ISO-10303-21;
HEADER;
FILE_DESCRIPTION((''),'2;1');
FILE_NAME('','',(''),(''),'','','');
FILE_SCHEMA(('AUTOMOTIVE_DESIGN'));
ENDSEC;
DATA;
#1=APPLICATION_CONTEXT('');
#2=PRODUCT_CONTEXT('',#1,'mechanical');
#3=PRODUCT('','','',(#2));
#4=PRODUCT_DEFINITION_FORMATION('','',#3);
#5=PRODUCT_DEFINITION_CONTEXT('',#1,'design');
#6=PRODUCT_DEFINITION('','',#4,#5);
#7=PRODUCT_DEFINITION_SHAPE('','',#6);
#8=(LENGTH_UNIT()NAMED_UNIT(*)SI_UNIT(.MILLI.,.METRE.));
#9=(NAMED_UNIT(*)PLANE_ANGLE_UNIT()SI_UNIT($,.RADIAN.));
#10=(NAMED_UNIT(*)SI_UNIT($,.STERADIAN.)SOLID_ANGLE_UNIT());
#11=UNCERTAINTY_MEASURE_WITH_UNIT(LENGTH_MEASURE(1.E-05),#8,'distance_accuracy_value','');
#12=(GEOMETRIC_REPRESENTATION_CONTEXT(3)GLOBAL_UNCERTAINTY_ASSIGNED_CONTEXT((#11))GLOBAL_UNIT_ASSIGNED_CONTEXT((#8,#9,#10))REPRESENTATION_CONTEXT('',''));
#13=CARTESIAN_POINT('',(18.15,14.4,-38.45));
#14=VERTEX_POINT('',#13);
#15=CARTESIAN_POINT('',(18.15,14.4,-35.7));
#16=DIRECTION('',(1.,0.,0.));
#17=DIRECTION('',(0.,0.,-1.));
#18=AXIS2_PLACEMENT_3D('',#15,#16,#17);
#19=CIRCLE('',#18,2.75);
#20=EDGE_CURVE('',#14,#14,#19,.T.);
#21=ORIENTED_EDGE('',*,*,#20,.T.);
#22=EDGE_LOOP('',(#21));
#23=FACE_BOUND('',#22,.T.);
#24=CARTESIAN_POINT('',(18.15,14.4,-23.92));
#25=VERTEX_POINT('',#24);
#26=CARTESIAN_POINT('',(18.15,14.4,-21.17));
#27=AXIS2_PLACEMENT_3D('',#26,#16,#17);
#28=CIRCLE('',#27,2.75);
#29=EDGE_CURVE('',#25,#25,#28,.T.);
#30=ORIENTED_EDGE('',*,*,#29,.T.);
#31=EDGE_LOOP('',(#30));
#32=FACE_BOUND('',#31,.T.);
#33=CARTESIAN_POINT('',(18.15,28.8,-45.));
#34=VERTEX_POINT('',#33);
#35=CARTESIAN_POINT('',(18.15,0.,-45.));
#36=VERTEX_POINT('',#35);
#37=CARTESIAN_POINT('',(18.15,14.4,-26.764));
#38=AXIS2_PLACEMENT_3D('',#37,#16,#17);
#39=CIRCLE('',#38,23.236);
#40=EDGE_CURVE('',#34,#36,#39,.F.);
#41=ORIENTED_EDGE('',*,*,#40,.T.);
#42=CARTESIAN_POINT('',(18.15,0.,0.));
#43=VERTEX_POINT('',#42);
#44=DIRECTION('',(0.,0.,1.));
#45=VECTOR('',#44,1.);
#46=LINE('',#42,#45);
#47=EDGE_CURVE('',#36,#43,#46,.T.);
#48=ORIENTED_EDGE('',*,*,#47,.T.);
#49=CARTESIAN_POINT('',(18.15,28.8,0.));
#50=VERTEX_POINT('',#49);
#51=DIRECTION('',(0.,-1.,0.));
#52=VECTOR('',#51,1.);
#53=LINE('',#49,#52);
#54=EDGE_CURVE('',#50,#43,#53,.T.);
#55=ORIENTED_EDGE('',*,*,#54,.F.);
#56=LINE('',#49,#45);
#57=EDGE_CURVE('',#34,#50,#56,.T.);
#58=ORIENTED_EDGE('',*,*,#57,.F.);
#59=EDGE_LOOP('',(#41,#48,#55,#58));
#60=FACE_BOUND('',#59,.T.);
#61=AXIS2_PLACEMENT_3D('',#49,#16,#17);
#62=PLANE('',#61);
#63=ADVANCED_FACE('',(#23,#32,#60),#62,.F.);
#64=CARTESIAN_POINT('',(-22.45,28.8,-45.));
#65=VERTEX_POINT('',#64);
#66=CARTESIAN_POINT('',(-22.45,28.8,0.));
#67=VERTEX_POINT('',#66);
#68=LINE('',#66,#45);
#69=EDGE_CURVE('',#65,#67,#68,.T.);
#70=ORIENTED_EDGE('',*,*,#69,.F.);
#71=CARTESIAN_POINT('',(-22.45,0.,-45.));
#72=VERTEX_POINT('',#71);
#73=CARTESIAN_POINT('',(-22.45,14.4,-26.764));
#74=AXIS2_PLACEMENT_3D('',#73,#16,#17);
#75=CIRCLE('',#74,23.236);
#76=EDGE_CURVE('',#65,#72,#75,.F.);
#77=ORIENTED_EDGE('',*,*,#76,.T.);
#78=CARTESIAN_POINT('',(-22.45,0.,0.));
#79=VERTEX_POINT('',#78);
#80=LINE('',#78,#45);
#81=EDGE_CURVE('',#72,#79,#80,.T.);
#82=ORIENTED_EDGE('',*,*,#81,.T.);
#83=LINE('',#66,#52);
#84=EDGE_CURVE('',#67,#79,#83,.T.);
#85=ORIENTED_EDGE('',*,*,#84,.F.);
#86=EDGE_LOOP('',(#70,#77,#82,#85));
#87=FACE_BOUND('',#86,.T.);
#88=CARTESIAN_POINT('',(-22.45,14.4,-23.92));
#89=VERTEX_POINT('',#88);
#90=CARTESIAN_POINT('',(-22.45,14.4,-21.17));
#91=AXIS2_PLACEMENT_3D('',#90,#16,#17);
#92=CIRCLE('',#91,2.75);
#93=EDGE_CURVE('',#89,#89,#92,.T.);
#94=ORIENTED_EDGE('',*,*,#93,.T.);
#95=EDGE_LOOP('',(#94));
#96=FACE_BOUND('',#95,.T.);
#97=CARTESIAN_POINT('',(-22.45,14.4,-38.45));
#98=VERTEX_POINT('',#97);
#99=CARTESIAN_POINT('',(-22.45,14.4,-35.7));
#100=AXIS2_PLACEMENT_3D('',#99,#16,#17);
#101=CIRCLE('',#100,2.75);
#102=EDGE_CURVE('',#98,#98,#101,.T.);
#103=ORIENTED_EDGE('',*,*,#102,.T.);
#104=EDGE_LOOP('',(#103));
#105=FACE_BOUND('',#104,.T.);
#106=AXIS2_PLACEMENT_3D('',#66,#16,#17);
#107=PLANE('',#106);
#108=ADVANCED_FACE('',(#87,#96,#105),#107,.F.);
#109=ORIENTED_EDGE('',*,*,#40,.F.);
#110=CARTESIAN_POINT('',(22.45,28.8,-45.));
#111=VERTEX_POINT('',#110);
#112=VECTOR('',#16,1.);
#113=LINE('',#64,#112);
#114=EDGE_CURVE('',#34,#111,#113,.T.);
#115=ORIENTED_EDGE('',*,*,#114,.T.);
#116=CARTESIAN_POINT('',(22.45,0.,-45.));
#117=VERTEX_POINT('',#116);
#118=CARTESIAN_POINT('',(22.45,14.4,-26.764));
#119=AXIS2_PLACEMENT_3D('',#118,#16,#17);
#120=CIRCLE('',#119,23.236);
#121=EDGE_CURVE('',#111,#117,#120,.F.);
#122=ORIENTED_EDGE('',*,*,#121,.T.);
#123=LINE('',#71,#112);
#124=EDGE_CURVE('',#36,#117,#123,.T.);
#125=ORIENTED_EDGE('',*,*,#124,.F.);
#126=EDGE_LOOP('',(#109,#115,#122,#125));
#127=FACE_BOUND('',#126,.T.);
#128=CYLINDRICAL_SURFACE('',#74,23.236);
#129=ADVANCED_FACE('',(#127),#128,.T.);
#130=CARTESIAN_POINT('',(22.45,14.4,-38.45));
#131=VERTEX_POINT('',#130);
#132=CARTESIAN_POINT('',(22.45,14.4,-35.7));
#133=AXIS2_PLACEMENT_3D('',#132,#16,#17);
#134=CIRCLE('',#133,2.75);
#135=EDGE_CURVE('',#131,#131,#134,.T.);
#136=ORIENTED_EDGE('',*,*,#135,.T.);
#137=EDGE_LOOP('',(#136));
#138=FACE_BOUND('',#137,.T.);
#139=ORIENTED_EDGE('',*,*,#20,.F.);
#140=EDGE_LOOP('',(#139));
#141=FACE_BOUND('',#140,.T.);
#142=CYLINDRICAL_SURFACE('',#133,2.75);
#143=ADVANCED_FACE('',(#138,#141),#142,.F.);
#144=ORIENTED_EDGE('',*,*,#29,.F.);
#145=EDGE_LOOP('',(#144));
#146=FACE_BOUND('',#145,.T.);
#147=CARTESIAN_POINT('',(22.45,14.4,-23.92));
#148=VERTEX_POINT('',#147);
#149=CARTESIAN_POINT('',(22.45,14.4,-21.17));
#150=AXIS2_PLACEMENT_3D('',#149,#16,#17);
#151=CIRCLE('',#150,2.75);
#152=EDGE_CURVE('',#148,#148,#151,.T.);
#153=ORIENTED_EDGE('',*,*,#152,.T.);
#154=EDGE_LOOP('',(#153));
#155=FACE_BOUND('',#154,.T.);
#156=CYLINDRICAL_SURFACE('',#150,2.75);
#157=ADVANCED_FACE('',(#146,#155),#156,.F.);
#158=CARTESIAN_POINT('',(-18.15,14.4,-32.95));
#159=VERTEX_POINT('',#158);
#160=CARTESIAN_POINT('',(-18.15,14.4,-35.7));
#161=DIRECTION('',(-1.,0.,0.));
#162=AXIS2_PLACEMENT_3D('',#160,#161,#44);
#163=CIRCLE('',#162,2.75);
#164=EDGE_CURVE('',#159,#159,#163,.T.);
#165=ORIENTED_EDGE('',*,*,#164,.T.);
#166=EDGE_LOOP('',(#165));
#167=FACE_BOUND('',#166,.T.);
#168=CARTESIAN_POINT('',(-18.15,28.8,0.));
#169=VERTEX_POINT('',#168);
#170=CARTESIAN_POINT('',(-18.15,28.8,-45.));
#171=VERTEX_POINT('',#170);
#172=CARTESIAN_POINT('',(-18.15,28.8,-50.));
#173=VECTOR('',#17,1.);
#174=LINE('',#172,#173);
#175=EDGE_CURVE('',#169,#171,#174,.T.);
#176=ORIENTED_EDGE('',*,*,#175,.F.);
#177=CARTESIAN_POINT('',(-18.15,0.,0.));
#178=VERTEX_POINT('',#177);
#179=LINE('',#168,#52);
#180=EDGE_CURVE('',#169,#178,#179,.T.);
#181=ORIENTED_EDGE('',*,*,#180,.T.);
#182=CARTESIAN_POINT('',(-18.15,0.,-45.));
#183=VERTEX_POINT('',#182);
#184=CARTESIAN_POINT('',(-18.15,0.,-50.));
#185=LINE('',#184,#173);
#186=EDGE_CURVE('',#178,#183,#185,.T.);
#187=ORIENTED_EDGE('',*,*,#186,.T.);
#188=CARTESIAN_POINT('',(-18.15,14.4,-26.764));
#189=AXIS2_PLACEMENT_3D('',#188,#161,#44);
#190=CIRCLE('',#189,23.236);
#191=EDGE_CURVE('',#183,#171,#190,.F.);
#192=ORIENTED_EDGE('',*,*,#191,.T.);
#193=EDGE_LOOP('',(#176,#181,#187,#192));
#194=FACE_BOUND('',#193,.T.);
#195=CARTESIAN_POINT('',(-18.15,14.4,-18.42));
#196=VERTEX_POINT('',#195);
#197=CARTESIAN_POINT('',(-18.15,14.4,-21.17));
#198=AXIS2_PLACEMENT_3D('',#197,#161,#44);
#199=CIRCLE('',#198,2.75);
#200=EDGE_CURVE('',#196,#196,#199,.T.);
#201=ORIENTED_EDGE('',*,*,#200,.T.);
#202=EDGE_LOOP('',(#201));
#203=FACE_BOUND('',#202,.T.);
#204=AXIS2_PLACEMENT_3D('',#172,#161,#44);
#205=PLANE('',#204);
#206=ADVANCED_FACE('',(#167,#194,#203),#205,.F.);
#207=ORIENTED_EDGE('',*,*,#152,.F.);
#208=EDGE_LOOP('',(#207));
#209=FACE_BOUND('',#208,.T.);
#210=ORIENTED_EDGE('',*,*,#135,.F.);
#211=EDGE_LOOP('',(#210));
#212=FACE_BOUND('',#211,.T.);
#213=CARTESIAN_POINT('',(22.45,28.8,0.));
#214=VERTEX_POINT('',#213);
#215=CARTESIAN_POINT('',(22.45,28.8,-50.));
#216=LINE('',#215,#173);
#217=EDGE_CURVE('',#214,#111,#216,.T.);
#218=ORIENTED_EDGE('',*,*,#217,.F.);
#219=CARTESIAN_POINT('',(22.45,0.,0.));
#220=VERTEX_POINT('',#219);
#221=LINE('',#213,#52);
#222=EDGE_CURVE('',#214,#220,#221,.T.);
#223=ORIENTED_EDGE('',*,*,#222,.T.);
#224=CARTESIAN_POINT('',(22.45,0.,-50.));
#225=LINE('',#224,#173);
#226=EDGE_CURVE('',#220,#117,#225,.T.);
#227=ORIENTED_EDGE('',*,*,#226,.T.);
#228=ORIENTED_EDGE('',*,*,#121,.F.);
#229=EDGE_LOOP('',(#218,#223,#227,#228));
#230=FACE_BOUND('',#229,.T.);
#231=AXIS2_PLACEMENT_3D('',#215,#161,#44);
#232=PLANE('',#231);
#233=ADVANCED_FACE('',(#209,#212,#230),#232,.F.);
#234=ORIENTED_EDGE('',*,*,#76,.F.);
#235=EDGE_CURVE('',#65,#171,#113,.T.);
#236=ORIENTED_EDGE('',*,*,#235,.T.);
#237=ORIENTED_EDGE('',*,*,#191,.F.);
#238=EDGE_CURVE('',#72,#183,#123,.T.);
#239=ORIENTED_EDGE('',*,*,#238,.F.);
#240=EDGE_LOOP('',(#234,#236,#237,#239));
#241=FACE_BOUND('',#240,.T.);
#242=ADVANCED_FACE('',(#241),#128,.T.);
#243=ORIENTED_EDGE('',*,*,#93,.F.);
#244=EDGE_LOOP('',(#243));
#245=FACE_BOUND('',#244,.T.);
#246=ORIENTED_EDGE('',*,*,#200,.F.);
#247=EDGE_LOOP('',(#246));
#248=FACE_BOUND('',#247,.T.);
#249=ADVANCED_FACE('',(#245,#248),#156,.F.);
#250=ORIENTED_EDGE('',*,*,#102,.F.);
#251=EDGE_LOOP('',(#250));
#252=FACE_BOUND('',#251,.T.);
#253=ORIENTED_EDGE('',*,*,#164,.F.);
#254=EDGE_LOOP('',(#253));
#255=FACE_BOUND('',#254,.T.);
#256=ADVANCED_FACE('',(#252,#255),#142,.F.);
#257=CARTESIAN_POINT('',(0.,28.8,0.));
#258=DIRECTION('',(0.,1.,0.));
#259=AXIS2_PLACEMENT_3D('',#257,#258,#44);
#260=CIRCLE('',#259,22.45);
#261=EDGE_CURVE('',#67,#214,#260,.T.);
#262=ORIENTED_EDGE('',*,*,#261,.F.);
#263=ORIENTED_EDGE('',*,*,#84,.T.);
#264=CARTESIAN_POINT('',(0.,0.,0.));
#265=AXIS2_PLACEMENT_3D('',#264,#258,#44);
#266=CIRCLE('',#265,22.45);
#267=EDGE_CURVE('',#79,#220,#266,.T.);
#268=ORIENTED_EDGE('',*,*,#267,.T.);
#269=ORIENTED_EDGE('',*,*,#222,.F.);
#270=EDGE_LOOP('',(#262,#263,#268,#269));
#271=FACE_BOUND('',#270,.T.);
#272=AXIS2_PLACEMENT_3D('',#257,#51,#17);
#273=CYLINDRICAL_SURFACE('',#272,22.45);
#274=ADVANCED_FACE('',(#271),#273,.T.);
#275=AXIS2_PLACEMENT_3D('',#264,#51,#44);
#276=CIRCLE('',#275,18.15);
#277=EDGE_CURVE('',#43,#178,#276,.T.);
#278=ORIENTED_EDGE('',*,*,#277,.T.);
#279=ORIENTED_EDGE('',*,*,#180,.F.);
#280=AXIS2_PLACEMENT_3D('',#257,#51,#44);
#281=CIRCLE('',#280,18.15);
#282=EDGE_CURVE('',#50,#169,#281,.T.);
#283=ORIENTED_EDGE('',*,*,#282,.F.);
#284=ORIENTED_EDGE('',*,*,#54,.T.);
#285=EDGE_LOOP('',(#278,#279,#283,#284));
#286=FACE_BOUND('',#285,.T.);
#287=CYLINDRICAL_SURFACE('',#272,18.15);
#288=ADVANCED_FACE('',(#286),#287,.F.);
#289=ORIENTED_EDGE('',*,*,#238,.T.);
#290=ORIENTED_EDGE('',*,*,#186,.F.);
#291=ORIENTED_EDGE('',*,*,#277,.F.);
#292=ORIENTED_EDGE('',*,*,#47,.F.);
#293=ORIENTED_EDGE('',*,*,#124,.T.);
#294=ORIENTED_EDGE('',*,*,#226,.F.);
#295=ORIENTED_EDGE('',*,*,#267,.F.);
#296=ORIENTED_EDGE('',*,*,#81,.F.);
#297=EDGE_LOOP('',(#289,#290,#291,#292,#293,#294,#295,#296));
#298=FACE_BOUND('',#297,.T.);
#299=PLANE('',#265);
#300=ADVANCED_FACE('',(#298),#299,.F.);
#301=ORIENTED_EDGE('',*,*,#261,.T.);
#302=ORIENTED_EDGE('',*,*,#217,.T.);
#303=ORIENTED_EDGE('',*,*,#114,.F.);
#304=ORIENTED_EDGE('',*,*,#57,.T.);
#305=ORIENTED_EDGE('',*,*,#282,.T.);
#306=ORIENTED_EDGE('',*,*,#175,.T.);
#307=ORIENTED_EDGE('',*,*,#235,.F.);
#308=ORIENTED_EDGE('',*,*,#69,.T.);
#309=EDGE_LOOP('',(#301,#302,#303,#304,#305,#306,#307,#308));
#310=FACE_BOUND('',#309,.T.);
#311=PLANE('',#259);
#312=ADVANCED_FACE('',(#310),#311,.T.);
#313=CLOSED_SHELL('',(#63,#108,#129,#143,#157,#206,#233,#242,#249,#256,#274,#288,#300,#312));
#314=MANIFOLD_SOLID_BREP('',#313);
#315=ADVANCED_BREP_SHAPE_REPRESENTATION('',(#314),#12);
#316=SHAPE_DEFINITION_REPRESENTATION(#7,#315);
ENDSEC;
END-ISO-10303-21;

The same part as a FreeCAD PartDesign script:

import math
import FreeCAD as App
import Part
import Sketcher
from FreeCAD import Vector

doc = App.newDocument("Part")
body = doc.addObject("PartDesign::Body", "Body")

# Sketch on XZ plane
sketch1 = body.newObject("Sketcher::SketchObject", "Sketch")
sketch1.AttachmentSupport = (doc.getObject("XZ_Plane"), [""])
sketch1.MapMode = "FlatFace"
sketch1.addGeometry(Part.LineSegment(Vector(-22.45, -50, 0), Vector(-22.45, 0, 0)), False)
sketch1.addGeometry(Part.ArcOfCircle(Part.Circle(Vector(0, 0, 0), Vector(0, 0, 1), 22.45), math.radians(0), math.radians(180)), False)
sketch1.addGeometry(Part.LineSegment(Vector(22.45, 0, 0), Vector(22.45, -50, 0)), False)
sketch1.addGeometry(Part.LineSegment(Vector(22.45, -50, 0), Vector(18.15, -50, 0)), False)
sketch1.addGeometry(Part.LineSegment(Vector(18.15, -50, 0), Vector(18.15, 0, 0)), False)
sketch1.addGeometry(Part.ArcOfCircle(Part.Circle(Vector(0, 0, 0), Vector(0, 0, 1), 18.15), math.radians(0), math.radians(180)), False)
sketch1.addGeometry(Part.LineSegment(Vector(-18.15, 0, 0), Vector(-18.15, -50, 0)), False)
sketch1.addGeometry(Part.LineSegment(Vector(-18.15, -50, 0), Vector(-22.45, -50, 0)), False)
sketch1.addConstraint(Sketcher.Constraint("Tangent", 0, 2, 1, 2))
sketch1.addConstraint(Sketcher.Constraint("Tangent", 1, 1, 2, 1))
sketch1.addConstraint(Sketcher.Constraint("Coincident", 2, 2, 3, 1))
sketch1.addConstraint(Sketcher.Constraint("Coincident", 3, 2, 4, 1))
sketch1.addConstraint(Sketcher.Constraint("Tangent", 4, 2, 5, 1))
sketch1.addConstraint(Sketcher.Constraint("Tangent", 5, 2, 6, 1))
sketch1.addConstraint(Sketcher.Constraint("Coincident", 6, 2, 7, 1))
sketch1.addConstraint(Sketcher.Constraint("Coincident", 7, 2, 0, 1))
sketch1.addConstraint(Sketcher.Constraint("Vertical", 0))
sketch1.addConstraint(Sketcher.Constraint("Vertical", 2))
sketch1.addConstraint(Sketcher.Constraint("Horizontal", 3))
sketch1.addConstraint(Sketcher.Constraint("Vertical", 4))
sketch1.addConstraint(Sketcher.Constraint("Vertical", 6))
sketch1.addConstraint(Sketcher.Constraint("Horizontal", 7))
sketch1.addConstraint(Sketcher.Constraint("Coincident", 1, 3, -1, 1))
sketch1.addConstraint(Sketcher.Constraint("Coincident", 5, 3, -1, 1))
sketch1.addConstraint(Sketcher.Constraint("Horizontal", 3, 2, 6, 2))
sketch1.addConstraint(Sketcher.Constraint("DistanceY", 0, 1, 0, 2, 50.0))
sketch1.addConstraint(Sketcher.Constraint("Radius", 1, 22.45))
sketch1.addConstraint(Sketcher.Constraint("Radius", 5, 18.15))
pad1 = body.newObject("PartDesign::Pad", "Pad")
pad1.Profile = sketch1
pad1.Length = 28.8
pad1.Reversed = True

# Sketch on YZ plane
sketch2 = body.newObject("Sketcher::SketchObject", "Sketch001")
sketch2.AttachmentSupport = (doc.getObject("YZ_Plane"), [""])
sketch2.MapMode = "FlatFace"
sketch2.AttachmentOffset = App.Placement(Vector(0, 0, 22.45), App.Rotation())
sketch2.addGeometry(Part.Circle(Vector(14.4, -21.17, 0), Vector(0, 0, 1), 2.75), False)
sketch2.addGeometry(Part.Circle(Vector(14.4, -35.7, 0), Vector(0, 0, 1), 2.75), False)
sketch2.addConstraint(Sketcher.Constraint("Equal", 0, 1))
sketch2.addConstraint(Sketcher.Constraint("Vertical", 0, 3, 1, 3))
sketch2.addConstraint(Sketcher.Constraint("Diameter", 0, 5.5))
sketch2.addConstraint(Sketcher.Constraint("DistanceX", -1, 1, 0, 3, 14.4))
sketch2.addConstraint(Sketcher.Constraint("DistanceY", 1, 3, -1, 1, 35.7))
sketch2.addConstraint(Sketcher.Constraint("DistanceY", 0, 3, -1, 1, 21.17))
doc.recompute()
hole = body.newObject("PartDesign::Hole", "Hole")
hole.Profile = sketch2
hole.ThreadType = "None"
hole.Diameter = 5.5
hole.DepthType = "ThroughAll"

# Sketch on YZ plane
sketch3 = body.newObject("Sketcher::SketchObject", "Sketch002")
sketch3.AttachmentSupport = (doc.getObject("YZ_Plane"), [""])
sketch3.MapMode = "FlatFace"
sketch3.AttachmentOffset = App.Placement(Vector(0, 0, 22.45), App.Rotation())
sketch3.addGeometry(Part.LineSegment(Vector(0, -50, 0), Vector(14.4, -50, 0)), False)
sketch3.addGeometry(Part.ArcOfCircle(Part.Circle(Vector(14.4, -26.764, 0), Vector(0, 0, 1), 23.236), math.radians(-128.296275), math.radians(-90)), False)
sketch3.addGeometry(Part.LineSegment(Vector(0, -45, 0), Vector(0, -50, 0)), False)
sketch3.addGeometry(Part.LineSegment(Vector(28.8, -50, 0), Vector(28.8, -45, 0)), False)
sketch3.addGeometry(Part.ArcOfCircle(Part.Circle(Vector(14.4, -26.764, 0), Vector(0, 0, 1), 23.236), math.radians(-90), math.radians(-51.703725)), False)
sketch3.addGeometry(Part.LineSegment(Vector(14.4, -50, 0), Vector(28.8, -50, 0)), False)
sketch3.addConstraint(Sketcher.Constraint("Tangent", 0, 2, 1, 2))
sketch3.addConstraint(Sketcher.Constraint("Coincident", 1, 1, 2, 1))
sketch3.addConstraint(Sketcher.Constraint("Coincident", 2, 2, 0, 1))
sketch3.addConstraint(Sketcher.Constraint("Coincident", 3, 2, 4, 2))
sketch3.addConstraint(Sketcher.Constraint("Tangent", 4, 1, 5, 1))
sketch3.addConstraint(Sketcher.Constraint("Coincident", 5, 2, 3, 1))
sketch3.addConstraint(Sketcher.Constraint("Horizontal", 0))
sketch3.addConstraint(Sketcher.Constraint("Vertical", 2))
sketch3.addConstraint(Sketcher.Constraint("Vertical", 3))
sketch3.addConstraint(Sketcher.Constraint("Horizontal", 5))
sketch3.addConstraint(Sketcher.Constraint("Coincident", 4, 3, 1, 3))
sketch3.addConstraint(Sketcher.Constraint("Equal", 1, 4))
sketch3.addConstraint(Sketcher.Constraint("PointOnObject", 1, 1, -2))
sketch3.addConstraint(Sketcher.Constraint("Horizontal", 1, 1, 3, 2))
sketch3.addConstraint(Sketcher.Constraint("DistanceY", 2, 2, 2, 1, 5.0))
sketch3.addConstraint(Sketcher.Constraint("DistanceX", 0, 1, 0, 2, 14.4))
sketch3.addConstraint(Sketcher.Constraint("DistanceY", 0, 2, -1, 1, 50.0))
pocket1 = body.newObject("PartDesign::Pocket", "Pocket")
pocket1.Profile = sketch3
pocket1.Type = "ThroughAll"

doc.recompute()
